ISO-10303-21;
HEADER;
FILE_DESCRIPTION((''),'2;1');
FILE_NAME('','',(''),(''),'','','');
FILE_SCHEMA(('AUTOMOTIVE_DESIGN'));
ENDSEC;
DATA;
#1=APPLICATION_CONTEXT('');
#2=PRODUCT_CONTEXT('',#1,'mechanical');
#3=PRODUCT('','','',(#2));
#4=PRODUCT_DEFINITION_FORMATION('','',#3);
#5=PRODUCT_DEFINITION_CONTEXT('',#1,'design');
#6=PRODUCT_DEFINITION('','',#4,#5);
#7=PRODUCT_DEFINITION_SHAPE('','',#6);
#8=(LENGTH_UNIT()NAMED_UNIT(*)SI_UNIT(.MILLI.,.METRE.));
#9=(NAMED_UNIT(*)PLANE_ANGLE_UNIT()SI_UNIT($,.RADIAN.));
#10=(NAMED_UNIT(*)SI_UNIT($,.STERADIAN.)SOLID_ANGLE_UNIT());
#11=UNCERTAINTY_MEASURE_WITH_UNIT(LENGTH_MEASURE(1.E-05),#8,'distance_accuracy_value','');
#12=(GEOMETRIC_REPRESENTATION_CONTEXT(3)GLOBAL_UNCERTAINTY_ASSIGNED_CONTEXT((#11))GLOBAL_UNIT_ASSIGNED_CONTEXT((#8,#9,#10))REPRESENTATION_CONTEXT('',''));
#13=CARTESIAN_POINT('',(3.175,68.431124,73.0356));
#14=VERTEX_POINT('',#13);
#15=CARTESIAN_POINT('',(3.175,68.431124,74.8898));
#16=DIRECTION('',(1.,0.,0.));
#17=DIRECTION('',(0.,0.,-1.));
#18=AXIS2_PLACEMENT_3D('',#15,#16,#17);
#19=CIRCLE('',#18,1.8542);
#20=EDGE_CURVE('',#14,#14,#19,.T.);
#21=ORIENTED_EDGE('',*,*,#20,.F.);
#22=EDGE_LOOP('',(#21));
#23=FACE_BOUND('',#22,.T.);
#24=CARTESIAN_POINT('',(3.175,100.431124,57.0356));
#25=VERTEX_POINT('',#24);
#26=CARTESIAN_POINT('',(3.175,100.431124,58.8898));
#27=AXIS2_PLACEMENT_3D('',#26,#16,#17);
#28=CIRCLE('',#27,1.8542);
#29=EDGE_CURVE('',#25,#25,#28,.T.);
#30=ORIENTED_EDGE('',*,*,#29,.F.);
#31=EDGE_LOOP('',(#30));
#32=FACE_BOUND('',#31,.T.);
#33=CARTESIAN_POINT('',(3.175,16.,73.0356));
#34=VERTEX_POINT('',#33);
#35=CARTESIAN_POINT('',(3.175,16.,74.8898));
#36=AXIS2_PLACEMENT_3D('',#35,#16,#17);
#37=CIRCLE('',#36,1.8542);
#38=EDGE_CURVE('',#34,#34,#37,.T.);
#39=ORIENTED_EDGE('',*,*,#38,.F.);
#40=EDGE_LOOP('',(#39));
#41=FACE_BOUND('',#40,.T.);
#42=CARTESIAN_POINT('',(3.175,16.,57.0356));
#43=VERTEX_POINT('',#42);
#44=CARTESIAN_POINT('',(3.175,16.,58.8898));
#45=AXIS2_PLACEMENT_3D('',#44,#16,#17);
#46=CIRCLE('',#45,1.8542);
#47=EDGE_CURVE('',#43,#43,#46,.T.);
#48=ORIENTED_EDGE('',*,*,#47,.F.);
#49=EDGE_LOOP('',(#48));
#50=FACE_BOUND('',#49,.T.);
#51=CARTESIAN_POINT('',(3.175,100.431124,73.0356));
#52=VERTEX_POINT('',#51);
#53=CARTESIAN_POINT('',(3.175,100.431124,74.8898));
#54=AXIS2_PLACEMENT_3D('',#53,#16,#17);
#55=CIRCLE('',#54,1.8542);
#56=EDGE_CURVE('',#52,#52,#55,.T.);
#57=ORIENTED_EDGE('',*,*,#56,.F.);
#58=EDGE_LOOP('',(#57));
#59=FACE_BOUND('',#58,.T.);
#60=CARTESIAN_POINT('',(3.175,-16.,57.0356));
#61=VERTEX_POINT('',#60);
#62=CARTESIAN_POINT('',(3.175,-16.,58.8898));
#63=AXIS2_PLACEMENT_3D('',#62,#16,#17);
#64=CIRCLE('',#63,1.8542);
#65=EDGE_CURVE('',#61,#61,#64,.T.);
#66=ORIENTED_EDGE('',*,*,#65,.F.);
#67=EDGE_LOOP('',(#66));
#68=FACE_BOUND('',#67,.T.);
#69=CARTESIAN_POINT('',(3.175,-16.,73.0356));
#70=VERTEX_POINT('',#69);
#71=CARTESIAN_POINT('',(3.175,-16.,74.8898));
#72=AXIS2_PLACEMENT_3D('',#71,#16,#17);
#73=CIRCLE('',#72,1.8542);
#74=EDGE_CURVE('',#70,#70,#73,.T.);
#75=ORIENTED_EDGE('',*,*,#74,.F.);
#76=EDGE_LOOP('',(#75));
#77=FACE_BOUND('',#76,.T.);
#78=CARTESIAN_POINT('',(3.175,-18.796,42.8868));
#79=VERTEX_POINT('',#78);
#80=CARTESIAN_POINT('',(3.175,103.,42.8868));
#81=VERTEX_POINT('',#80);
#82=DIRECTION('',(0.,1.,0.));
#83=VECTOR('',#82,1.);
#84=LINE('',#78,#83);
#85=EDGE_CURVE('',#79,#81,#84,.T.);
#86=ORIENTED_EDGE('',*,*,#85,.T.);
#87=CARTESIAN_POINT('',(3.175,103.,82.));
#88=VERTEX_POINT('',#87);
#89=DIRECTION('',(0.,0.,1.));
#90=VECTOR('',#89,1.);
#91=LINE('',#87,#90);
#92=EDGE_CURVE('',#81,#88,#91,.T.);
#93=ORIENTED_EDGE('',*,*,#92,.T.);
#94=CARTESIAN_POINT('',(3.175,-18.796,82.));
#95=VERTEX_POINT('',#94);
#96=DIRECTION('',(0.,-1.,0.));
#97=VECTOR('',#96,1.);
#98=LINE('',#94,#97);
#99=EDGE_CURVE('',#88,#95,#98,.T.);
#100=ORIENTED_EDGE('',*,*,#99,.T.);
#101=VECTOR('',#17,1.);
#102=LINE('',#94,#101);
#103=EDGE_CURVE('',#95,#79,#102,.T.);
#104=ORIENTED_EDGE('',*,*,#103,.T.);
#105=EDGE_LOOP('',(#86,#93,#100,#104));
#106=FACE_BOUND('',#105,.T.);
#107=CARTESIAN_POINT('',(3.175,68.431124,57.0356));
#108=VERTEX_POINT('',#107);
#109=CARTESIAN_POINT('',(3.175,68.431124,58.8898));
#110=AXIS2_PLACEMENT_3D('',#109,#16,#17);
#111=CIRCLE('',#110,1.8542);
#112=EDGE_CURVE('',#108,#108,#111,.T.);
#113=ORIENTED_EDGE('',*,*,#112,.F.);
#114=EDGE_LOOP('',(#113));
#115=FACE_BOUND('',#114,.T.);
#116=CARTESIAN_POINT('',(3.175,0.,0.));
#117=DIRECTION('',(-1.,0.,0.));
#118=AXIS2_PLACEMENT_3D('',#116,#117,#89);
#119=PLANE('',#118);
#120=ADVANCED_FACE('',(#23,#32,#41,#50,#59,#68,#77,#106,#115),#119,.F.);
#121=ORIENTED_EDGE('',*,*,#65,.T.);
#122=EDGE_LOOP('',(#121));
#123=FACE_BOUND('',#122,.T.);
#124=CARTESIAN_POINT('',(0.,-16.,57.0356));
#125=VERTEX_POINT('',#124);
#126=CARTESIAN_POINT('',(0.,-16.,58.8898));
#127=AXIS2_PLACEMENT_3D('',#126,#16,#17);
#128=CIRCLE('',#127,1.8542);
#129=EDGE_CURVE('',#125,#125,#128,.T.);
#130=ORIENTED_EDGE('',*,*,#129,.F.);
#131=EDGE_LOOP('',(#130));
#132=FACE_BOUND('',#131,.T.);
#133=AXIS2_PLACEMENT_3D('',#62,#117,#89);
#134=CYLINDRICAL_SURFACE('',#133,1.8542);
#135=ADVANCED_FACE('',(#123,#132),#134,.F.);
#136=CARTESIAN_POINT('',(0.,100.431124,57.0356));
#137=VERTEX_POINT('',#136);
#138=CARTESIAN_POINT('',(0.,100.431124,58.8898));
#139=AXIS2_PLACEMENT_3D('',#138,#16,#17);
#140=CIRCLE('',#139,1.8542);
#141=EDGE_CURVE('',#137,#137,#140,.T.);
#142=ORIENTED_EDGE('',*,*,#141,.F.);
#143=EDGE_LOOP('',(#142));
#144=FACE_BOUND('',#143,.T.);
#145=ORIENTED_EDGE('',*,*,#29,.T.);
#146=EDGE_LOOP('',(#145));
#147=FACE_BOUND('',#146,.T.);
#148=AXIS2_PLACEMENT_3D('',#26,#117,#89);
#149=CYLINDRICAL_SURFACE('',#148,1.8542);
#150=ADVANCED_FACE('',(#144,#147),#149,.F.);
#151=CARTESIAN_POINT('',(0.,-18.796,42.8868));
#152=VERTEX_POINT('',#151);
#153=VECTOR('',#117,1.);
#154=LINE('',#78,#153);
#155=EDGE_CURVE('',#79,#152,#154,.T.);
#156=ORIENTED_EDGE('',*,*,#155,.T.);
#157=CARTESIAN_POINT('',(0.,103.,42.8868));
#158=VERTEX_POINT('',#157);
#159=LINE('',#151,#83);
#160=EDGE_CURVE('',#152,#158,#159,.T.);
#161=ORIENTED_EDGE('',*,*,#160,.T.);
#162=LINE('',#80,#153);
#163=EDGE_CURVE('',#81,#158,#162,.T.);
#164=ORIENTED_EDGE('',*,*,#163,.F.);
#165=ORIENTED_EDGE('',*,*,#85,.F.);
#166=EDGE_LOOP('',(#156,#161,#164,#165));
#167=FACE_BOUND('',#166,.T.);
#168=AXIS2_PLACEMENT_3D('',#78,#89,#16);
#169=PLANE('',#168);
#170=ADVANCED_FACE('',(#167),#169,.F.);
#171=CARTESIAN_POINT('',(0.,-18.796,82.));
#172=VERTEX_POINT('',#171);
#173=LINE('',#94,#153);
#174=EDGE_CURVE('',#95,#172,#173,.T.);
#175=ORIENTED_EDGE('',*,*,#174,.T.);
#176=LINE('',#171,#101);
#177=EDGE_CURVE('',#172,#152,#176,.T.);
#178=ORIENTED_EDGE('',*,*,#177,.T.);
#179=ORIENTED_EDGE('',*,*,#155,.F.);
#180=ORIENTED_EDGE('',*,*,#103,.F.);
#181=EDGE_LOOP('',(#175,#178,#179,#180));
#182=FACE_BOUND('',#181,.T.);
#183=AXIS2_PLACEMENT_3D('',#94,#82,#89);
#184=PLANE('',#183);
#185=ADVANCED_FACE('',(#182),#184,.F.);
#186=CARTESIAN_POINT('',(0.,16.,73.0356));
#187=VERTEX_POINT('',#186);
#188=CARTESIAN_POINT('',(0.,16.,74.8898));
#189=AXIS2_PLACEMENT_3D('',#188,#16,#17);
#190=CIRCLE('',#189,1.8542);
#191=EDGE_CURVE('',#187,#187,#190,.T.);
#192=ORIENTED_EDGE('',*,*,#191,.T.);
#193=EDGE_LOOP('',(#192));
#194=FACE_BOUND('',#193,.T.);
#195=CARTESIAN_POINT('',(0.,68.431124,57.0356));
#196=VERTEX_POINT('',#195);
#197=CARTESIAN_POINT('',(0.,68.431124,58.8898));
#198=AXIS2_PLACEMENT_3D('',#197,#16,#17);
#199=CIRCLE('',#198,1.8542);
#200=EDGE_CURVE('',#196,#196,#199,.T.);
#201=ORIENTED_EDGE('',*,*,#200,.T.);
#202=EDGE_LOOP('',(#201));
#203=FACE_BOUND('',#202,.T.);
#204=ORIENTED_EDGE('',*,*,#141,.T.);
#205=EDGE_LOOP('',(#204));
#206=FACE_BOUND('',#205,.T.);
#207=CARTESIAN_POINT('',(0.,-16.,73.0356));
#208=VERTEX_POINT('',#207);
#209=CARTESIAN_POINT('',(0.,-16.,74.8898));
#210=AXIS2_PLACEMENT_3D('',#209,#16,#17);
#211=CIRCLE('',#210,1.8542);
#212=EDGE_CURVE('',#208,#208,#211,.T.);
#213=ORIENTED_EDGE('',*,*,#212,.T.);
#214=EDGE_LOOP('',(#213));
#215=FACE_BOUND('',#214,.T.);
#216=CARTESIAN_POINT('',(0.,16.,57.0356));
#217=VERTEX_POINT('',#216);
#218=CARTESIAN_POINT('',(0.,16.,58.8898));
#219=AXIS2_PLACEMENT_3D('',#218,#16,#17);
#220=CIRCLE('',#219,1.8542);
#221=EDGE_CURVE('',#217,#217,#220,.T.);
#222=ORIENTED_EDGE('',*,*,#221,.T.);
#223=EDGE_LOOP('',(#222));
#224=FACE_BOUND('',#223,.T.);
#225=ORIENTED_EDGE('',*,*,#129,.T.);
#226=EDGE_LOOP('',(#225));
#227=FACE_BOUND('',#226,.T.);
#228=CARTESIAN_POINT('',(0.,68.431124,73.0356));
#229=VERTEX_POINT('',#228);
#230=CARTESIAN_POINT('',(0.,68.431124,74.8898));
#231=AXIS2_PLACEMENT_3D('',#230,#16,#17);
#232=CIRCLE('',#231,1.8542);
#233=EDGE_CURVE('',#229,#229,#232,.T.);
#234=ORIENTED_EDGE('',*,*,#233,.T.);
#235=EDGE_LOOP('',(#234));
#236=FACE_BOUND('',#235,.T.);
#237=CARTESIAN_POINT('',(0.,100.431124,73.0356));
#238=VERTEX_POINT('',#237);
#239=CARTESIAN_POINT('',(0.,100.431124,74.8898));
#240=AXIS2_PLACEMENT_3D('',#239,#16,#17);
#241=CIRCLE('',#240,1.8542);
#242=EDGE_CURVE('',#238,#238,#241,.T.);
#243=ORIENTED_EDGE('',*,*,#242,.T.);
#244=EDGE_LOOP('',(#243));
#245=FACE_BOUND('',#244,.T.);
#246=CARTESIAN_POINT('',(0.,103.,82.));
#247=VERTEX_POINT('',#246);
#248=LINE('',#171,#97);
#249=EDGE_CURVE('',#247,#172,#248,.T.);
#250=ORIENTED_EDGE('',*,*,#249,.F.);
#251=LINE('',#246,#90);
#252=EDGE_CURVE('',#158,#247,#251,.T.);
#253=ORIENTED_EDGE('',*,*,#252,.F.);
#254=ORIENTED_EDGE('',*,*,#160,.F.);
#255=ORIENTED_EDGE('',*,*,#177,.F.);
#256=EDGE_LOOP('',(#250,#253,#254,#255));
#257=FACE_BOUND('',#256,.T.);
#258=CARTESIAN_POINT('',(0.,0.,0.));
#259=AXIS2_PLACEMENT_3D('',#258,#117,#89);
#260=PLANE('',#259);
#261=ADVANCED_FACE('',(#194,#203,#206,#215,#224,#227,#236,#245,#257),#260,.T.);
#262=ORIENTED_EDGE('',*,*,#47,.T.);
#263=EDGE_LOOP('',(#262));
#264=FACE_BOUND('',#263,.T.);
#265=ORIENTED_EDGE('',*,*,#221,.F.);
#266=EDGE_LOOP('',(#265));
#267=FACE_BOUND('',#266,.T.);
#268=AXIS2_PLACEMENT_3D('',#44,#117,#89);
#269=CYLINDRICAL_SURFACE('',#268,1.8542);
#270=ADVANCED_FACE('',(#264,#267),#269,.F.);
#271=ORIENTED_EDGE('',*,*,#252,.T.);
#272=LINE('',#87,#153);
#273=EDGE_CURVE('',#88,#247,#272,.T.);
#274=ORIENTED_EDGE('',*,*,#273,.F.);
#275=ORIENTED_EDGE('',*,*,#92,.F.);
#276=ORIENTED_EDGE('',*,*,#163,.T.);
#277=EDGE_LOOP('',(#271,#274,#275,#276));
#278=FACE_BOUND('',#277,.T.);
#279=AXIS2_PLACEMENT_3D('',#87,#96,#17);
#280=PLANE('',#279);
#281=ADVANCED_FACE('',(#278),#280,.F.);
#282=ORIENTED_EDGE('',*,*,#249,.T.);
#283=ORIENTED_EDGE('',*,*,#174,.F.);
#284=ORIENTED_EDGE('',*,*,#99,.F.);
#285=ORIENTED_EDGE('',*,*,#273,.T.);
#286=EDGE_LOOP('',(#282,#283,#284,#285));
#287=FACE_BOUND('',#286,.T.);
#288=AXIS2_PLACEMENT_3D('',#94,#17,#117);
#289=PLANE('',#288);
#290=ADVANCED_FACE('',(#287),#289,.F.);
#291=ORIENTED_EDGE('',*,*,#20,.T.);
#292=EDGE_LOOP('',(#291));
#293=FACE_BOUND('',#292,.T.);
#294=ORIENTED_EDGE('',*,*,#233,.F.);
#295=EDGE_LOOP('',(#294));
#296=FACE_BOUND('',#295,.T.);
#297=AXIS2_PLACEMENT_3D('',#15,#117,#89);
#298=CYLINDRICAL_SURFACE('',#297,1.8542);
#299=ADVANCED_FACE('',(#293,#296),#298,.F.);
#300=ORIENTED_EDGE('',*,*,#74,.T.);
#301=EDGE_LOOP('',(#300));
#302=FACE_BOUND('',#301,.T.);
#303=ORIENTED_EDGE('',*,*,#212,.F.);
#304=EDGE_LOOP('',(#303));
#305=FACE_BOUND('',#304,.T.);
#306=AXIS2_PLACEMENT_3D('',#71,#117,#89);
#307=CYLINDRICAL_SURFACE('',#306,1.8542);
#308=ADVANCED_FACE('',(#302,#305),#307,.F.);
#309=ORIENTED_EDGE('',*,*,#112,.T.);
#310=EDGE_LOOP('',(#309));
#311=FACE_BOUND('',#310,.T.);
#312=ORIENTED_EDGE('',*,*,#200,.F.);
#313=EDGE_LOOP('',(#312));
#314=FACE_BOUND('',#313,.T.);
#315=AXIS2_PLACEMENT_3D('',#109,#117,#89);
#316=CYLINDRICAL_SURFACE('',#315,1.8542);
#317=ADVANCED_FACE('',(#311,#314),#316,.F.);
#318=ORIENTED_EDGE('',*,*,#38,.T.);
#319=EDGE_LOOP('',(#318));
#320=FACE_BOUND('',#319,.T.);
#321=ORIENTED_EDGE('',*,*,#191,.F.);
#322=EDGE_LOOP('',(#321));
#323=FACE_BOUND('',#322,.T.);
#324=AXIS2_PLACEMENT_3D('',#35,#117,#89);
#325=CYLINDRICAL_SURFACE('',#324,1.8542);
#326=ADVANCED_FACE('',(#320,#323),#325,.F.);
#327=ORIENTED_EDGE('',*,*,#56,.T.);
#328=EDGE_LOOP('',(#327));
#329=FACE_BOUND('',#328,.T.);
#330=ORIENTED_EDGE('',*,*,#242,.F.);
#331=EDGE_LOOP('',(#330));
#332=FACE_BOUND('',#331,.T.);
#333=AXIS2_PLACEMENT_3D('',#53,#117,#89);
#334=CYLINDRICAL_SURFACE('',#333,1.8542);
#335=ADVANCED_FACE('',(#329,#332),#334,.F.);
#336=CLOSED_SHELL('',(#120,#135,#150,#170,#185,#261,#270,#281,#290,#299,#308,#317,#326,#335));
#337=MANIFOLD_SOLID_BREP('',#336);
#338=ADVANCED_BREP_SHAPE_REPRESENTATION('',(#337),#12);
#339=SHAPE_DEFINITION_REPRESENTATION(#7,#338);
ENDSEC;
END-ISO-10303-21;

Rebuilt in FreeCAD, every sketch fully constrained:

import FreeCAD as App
import Part
import Sketcher
Q = App.Units.Quantity

doc = App.newDocument("Part")
params = doc.addObject("Spreadsheet::Sheet", "Params")
for row, (alias, value) in enumerate([
    ("sketch1_diameter", "0.146 in"),
    ("pad1_length", "0.125 in"),
], start=1):
    params.set(f"A{row}", alias)
    params.set(f"B{row}", "=" + value)
    params.setAlias(f"B{row}", alias)

body = doc.addObject("PartDesign::Body", "Body")

sketch1 = body.newObject("Sketcher::SketchObject", "Sketch")
sketch1.AttachmentSupport = (doc.getObject("YZ_Plane"), [""])
sketch1.MapMode = "FlatFace"
sketch1.addGeometry(Part.LineSegment(App.Vector(103, 82, 0), App.Vector(-18.8, 82, 0)), False)
sketch1.addGeometry(Part.LineSegment(App.Vector(-18.8, 82, 0), App.Vector(-18.8, 42.9, 0)), False)
sketch1.addGeometry(Part.LineSegment(App.Vector(-18.8, 42.9, 0), App.Vector(103, 42.9, 0)), False)
sketch1.addGeometry(Part.LineSegment(App.Vector(103, 42.9, 0), App.Vector(103, 82, 0)), False)
sketch1.addGeometry(Part.Circle(App.Vector(-16, 74.9, 0), App.Vector(0, 0, 1), 1.9), False)
sketch1.addGeometry(Part.Circle(App.Vector(16, 74.9, 0), App.Vector(0, 0, 1), 1.9), False)
sketch1.addGeometry(Part.Circle(App.Vector(-16, 58.9, 0), App.Vector(0, 0, 1), 1.9), False)
sketch1.addGeometry(Part.Circle(App.Vector(16, 58.9, 0), App.Vector(0, 0, 1), 1.9), False)
sketch1.addGeometry(Part.Circle(App.Vector(68.4, 74.9, 0), App.Vector(0, 0, 1), 1.9), False)
sketch1.addGeometry(Part.Circle(App.Vector(100.4, 74.9, 0), App.Vector(0, 0, 1), 1.9), False)
sketch1.addGeometry(Part.Circle(App.Vector(68.4, 58.9, 0), App.Vector(0, 0, 1), 1.9), False)
sketch1.addGeometry(Part.Circle(App.Vector(100.4, 58.9, 0), App.Vector(0, 0, 1), 1.9), False)
sketch1.addConstraint(Sketcher.Constraint("Coincident", 0, 2, 1, 1))
sketch1.addConstraint(Sketcher.Constraint("Coincident", 1, 2, 2, 1))
sketch1.addConstraint(Sketcher.Constraint("Coincident", 2, 2, 3, 1))
sketch1.addConstraint(Sketcher.Constraint("Coincident", 3, 2, 0, 1))
sketch1.addConstraint(Sketcher.Constraint("Horizontal", 0))
sketch1.addConstraint(Sketcher.Constraint("Vertical", 1))
sketch1.addConstraint(Sketcher.Constraint("Horizontal", 2))
sketch1.addConstraint(Sketcher.Constraint("Vertical", 3))
sketch1.addConstraint(Sketcher.Constraint("Equal", 4, 5))
sketch1.addConstraint(Sketcher.Constraint("Equal", 5, 6))
sketch1.addConstraint(Sketcher.Constraint("Equal", 6, 7))
sketch1.addConstraint(Sketcher.Constraint("Equal", 7, 8))
sketch1.addConstraint(Sketcher.Constraint("Equal", 8, 9))
sketch1.addConstraint(Sketcher.Constraint("Equal", 9, 10))
sketch1.addConstraint(Sketcher.Constraint("Equal", 10, 11))
sketch1.addConstraint(Sketcher.Constraint("Symmetric", 4, 3, 5, 3, -2))
sketch1.addConstraint(Sketcher.Constraint("Symmetric", 6, 3, 7, 3, -2))
sketch1.addConstraint(Sketcher.Constraint("Horizontal", 5, 3, 8, 3))
sketch1.addConstraint(Sketcher.Constraint("Horizontal", 8, 3, 9, 3))
sketch1.addConstraint(Sketcher.Constraint("Horizontal", 7, 3, 10, 3))
sketch1.addConstraint(Sketcher.Constraint("Horizontal", 10, 3, 11, 3))
sketch1.addConstraint(Sketcher.Constraint("Vertical", 4, 3, 6, 3))
sketch1.addConstraint(Sketcher.Constraint("Vertical", 8, 3, 10, 3))
sketch1.addConstraint(Sketcher.Constraint("Vertical", 9, 3, 11, 3))
sketch1.addConstraint(Sketcher.Constraint("Diameter", 4, Q("0.146 in")))
sketch1.addConstraint(Sketcher.Constraint("DistanceX", 0, 2, -1, 1, Q("0.74 in")))
sketch1.addConstraint(Sketcher.Constraint("DistanceX", 0, 2, 0, 1, 121.796))
sketch1.addConstraint(Sketcher.Constraint("DistanceY", 1, 2, 1, 1, 39.1132))
sketch1.addConstraint(Sketcher.Constraint("DistanceX", 4, 3, -1, 1, 16.0))
sketch1.addConstraint(Sketcher.Constraint("DistanceY", -1, 1, 4, 3, 74.8898))
sketch1.addConstraint(Sketcher.Constraint("DistanceY", -1, 1, 6, 3, 58.8898))
sketch1.addConstraint(Sketcher.Constraint("DistanceY", -1, 1, 0, 2, 82.0))
sketch1.addConstraint(Sketcher.Constraint("DistanceX", 8, 3, 9, 3, 32.0))
sketch1.addConstraint(Sketcher.Constraint("DistanceX", -1, 1, 8, 3, 68.431124))
sketch1.setExpression("Constraints[24]", "Params.sketch1_diameter")
pad1 = body.newObject("PartDesign::Pad", "Pad")
pad1.Profile = sketch1
pad1.setExpression("Length", "Params.pad1_length")

doc.recompute()
